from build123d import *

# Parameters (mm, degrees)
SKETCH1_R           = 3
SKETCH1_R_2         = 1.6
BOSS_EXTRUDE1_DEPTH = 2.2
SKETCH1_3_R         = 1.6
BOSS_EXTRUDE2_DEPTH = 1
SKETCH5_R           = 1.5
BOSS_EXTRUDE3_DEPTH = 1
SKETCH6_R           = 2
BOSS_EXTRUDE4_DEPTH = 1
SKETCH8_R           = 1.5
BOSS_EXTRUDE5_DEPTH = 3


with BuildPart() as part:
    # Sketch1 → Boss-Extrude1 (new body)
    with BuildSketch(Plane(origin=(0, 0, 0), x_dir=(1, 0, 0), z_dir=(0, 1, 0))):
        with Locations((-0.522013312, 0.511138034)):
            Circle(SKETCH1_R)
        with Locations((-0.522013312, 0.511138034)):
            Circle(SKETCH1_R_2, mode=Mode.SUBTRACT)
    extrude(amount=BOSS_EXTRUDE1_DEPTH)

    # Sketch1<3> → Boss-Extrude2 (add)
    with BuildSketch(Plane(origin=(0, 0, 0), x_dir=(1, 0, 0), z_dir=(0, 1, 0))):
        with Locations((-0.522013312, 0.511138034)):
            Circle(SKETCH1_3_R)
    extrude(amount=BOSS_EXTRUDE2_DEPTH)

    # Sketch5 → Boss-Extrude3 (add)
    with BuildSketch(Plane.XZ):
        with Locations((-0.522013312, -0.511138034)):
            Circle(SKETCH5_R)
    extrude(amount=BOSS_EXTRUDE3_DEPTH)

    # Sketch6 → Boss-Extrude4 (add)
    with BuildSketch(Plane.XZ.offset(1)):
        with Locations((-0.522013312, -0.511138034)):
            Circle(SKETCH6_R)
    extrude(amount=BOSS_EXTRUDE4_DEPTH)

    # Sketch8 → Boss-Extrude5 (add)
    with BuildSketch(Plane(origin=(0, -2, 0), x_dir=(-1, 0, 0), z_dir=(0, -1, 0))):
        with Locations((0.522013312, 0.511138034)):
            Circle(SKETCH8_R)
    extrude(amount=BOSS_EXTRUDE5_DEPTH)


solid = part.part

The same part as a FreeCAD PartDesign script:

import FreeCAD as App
import Part
import Sketcher
from FreeCAD import Vector

doc = App.newDocument("Part")
body = doc.addObject("PartDesign::Body", "Body")

# Sketch on XZ plane
sketch1 = body.newObject("Sketcher::SketchObject", "Sketch")
sketch1.AttachmentSupport = (doc.getObject("XZ_Plane"), [""])
sketch1.MapMode = "FlatFace"
sketch1.addGeometry(Part.Circle(Vector(-0.522013, -0.511138, 0), Vector(0, 0, 1), 3), False)
sketch1.addGeometry(Part.Circle(Vector(-0.522013, -0.511138, 0), Vector(0, 0, 1), 1.6), False)
sketch1.addConstraint(Sketcher.Constraint("Coincident", 1, 3, 0, 3))
sketch1.addConstraint(Sketcher.Constraint("Diameter", 0, 6.0))
sketch1.addConstraint(Sketcher.Constraint("Diameter", 1, 3.2))
sketch1.addConstraint(Sketcher.Constraint("DistanceY", 0, 3, -1, 1, 0.511138))
sketch1.addConstraint(Sketcher.Constraint("DistanceX", 0, 3, -1, 1, 0.522013))
pad1 = body.newObject("PartDesign::Pad", "Pad")
pad1.Profile = sketch1
pad1.Length = 2.2
pad1.Reversed = True

# Sketch on XZ plane
sketch2 = body.newObject("Sketcher::SketchObject", "Sketch001")
sketch2.AttachmentSupport = (doc.getObject("XZ_Plane"), [""])
sketch2.MapMode = "FlatFace"
sketch2.addGeometry(Part.Circle(Vector(-0.522013, -0.511138, 0), Vector(0, 0, 1), 1.6), False)
sketch2.addConstraint(Sketcher.Constraint("Diameter", 0, 3.2))
sketch2.addConstraint(Sketcher.Constraint("DistanceY", 0, 3, -1, 1, 0.511138))
sketch2.addConstraint(Sketcher.Constraint("DistanceX", 0, 3, -1, 1, 0.522013))
pad2 = body.newObject("PartDesign::Pad", "Pad001")
pad2.Profile = sketch2
pad2.Length = 1
pad2.Reversed = True

# Sketch on XZ plane
sketch3 = body.newObject("Sketcher::SketchObject", "Sketch002")
sketch3.AttachmentSupport = (doc.getObject("XZ_Plane"), [""])
sketch3.MapMode = "FlatFace"
sketch3.addGeometry(Part.Circle(Vector(-0.522013, -0.511138, 0), Vector(0, 0, 1), 1.5), False)
sketch3.addConstraint(Sketcher.Constraint("Diameter", 0, 3.0))
sketch3.addConstraint(Sketcher.Constraint("DistanceY", 0, 3, -1, 1, 0.511138))
sketch3.addConstraint(Sketcher.Constraint("DistanceX", 0, 3, -1, 1, 0.522013))
pad3 = body.newObject("PartDesign::Pad", "Pad002")
pad3.Profile = sketch3
pad3.Length = 1

# Sketch on XZ plane
sketch4 = body.newObject("Sketcher::SketchObject", "Sketch003")
sketch4.AttachmentSupport = (doc.getObject("XZ_Plane"), [""])
sketch4.MapMode = "FlatFace"
sketch4.AttachmentOffset = App.Placement(Vector(0, 0, 1), App.Rotation())
sketch4.addGeometry(Part.Circle(Vector(-0.522013, -0.511138, 0), Vector(0, 0, 1), 2), False)
sketch4.addConstraint(Sketcher.Constraint("Diameter", 0, 4.0))
sketch4.addConstraint(Sketcher.Constraint("DistanceY", 0, 3, -1, 1, 0.511138))
sketch4.addConstraint(Sketcher.Constraint("DistanceX", 0, 3, -1, 1, 0.522013))
pad4 = body.newObject("PartDesign::Pad", "Pad003")
pad4.Profile = sketch4
pad4.Length = 1

# Sketch on XZ plane
sketch5 = body.newObject("Sketcher::SketchObject", "Sketch004")
sketch5.AttachmentSupport = (doc.getObject("XZ_Plane"), [""])
sketch5.MapMode = "FlatFace"
sketch5.AttachmentOffset = App.Placement(Vector(0, 0, 2), App.Rotation())
sketch5.addGeometry(Part.Circle(Vector(-0.522013, -0.511138, 0), Vector(0, 0, 1), 1.5), False)
sketch5.addConstraint(Sketcher.Constraint("Diameter", 0, 3.0))
sketch5.addConstraint(Sketcher.Constraint("DistanceY", 0, 3, -1, 1, 0.511138))
sketch5.addConstraint(Sketcher.Constraint("DistanceX", 0, 3, -1, 1, 0.522013))
pad5 = body.newObject("PartDesign::Pad", "Pad004")
pad5.Profile = sketch5
pad5.Length = 3

doc.recompute()
